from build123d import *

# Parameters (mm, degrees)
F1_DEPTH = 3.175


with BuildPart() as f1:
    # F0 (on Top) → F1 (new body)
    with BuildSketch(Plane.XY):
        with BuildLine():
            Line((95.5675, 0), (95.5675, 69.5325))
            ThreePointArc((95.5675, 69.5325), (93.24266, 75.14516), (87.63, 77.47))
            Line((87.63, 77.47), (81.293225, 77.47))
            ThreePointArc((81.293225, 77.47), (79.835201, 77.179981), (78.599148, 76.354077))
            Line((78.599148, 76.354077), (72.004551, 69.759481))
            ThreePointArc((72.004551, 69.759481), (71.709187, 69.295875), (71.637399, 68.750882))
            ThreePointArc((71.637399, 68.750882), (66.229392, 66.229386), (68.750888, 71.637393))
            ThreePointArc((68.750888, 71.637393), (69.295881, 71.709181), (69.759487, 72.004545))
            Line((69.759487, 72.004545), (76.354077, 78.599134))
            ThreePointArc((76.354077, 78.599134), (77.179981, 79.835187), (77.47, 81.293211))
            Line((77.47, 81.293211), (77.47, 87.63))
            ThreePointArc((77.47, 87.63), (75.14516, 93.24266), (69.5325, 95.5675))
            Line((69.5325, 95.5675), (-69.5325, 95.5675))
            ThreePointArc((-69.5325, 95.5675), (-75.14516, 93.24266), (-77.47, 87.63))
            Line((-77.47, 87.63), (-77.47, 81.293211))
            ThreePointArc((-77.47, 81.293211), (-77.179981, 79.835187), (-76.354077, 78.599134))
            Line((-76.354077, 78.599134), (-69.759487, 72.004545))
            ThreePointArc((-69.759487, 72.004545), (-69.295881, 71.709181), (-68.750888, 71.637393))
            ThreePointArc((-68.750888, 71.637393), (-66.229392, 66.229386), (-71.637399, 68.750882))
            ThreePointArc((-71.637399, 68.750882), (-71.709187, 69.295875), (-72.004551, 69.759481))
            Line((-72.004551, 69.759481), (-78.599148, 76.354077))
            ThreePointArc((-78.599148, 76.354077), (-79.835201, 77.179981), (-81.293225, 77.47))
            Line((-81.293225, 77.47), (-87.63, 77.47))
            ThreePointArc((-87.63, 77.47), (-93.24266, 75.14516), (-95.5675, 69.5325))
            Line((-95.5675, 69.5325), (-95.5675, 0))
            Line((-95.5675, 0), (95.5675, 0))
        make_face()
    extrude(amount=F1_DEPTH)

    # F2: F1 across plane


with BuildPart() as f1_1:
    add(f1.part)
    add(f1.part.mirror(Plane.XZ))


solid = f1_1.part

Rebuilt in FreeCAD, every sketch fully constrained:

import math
import FreeCAD as App
import Part
import Sketcher
Q = App.Units.Quantity

doc = App.newDocument("Part")
params = doc.addObject("Spreadsheet::Sheet", "Params")
for row, (alias, value) in enumerate([
    ("sketch1_radius", "0.15 in"),
    ("sketch1_radius2", "0.0500002 in"),
    ("sketch1_radius3", "0.0500002 in"),
    ("sketch1_radius4", "0.15 in"),
    ("sketch1_radius5", "0.15 in"),
    ("pad1_length", "0.125 in"),
], start=1):
    params.set(f"A{row}", alias)
    params.set(f"B{row}", "=" + value)
    params.setAlias(f"B{row}", alias)

body = doc.addObject("PartDesign::Body", "Body")

sketch1 = body.newObject("Sketcher::SketchObject", "Sketch")
sketch1.AttachmentSupport = (doc.getObject("XY_Plane"), [""])
sketch1.MapMode = "FlatFace"
sketch1.addGeometry([
    Part.LineSegment(App.Vector(95.5675, 0, 0), App.Vector(95.5675, 69.5325, 0)),
    Part.ArcOfCircle(Part.Circle(App.Vector(87.63, 69.5325, 0), App.Vector(0, 0, 1), 7.9375), math.radians(0.000002), math.radians(89.999998)),
    Part.LineSegment(App.Vector(87.63, 77.47, 0), App.Vector(81.293225, 77.47, 0)),
    Part.ArcOfCircle(Part.Circle(App.Vector(81.293225, 73.659999, 0), App.Vector(0, 0, 1), 3.810001), math.radians(90.000002), math.radians(134.999989)),
    Part.LineSegment(App.Vector(78.599148, 76.354077, 0), App.Vector(72.004551, 69.759481, 0)),
    Part.ArcOfCircle(Part.Circle(App.Vector(72.902581, 68.861453, 0), App.Vector(0, 0, 1), 1.270005), math.radians(135.000085), math.radians(184.9947)),
    Part.ArcOfCircle(Part.Circle(App.Vector(68.474456, 68.47445, 0), App.Vector(0, 0, 1), 3.175), math.radians(85.005206), math.radians(364.994794)),
    Part.ArcOfCircle(Part.Circle(App.Vector(68.861459, 72.902575, 0), App.Vector(0, 0, 1), 1.270005), math.radians(-94.9947), math.radians(-45.000085)),
    Part.LineSegment(App.Vector(69.759487, 72.004545, 0), App.Vector(76.354077, 78.599134, 0)),
    Part.ArcOfCircle(Part.Circle(App.Vector(73.659999, 81.293211, 0), App.Vector(0, 0, 1), 3.810001), math.radians(-44.999989), math.radians(-0.000002)),
    Part.LineSegment(App.Vector(77.47, 81.293211, 0), App.Vector(77.47, 87.63, 0)),
    Part.ArcOfCircle(Part.Circle(App.Vector(69.5325, 87.63, 0), App.Vector(0, 0, 1), 7.9375), math.radians(0.000002), math.radians(89.999998)),
    Part.LineSegment(App.Vector(69.5325, 95.5675, 0), App.Vector(-69.5325, 95.5675, 0)),
    Part.ArcOfCircle(Part.Circle(App.Vector(-69.5325, 87.63, 0), App.Vector(0, 0, 1), 7.9375), math.radians(90.000002), math.radians(179.999998)),
    Part.LineSegment(App.Vector(-77.47, 87.63, 0), App.Vector(-77.47, 81.293211, 0)),
    Part.ArcOfCircle(Part.Circle(App.Vector(-73.659999, 81.293211, 0), App.Vector(0, 0, 1), 3.810001), math.radians(-179.999998), math.radians(-135.000011)),
    Part.LineSegment(App.Vector(-76.354077, 78.599134, 0), App.Vector(-69.759487, 72.004545, 0)),
    Part.ArcOfCircle(Part.Circle(App.Vector(-68.861459, 72.902575, 0), App.Vector(0, 0, 1), 1.270005), math.radians(-134.999915), math.radians(-85.0053)),
    Part.ArcOfCircle(Part.Circle(App.Vector(-68.474456, 68.47445, 0), App.Vector(0, 0, 1), 3.175), math.radians(175.005206), math.radians(454.994794)),
    Part.ArcOfCircle(Part.Circle(App.Vector(-72.902581, 68.861453, 0), App.Vector(0, 0, 1), 1.270005), math.radians(-4.9947), math.radians(44.999915)),
    Part.LineSegment(App.Vector(-72.004551, 69.759481, 0), App.Vector(-78.599148, 76.354077, 0)),
    Part.ArcOfCircle(Part.Circle(App.Vector(-81.293225, 73.659999, 0), App.Vector(0, 0, 1), 3.810001), math.radians(45.000011), math.radians(89.999998)),
    Part.LineSegment(App.Vector(-81.293225, 77.47, 0), App.Vector(-87.63, 77.47, 0)),
    Part.ArcOfCircle(Part.Circle(App.Vector(-87.63, 69.5325, 0), App.Vector(0, 0, 1), 7.9375), math.radians(90.000002), math.radians(179.999998)),
    Part.LineSegment(App.Vector(-95.5675, 69.5325, 0), App.Vector(-95.5675, 0, 0)),
    Part.LineSegment(App.Vector(-95.5675, 0, 0), App.Vector(95.5675, 0, 0)),
], False)
sketch1.addConstraint([
    Sketcher.Constraint("Coincident", 0, 2, 1, 1),
    Sketcher.Constraint("Coincident", 1, 2, 2, 1),
    Sketcher.Constraint("Coincident", 2, 2, 3, 1),
    Sketcher.Constraint("Coincident", 3, 2, 4, 1),
    Sketcher.Constraint("Coincident", 4, 2, 5, 1),
    Sketcher.Constraint("Coincident", 5, 2, 6, 2),
    Sketcher.Constraint("Coincident", 6, 1, 7, 1),
    Sketcher.Constraint("Coincident", 7, 2, 8, 1),
    Sketcher.Constraint("Coincident", 8, 2, 9, 1),
    Sketcher.Constraint("Coincident", 9, 2, 10, 1),
    Sketcher.Constraint("Coincident", 10, 2, 11, 1),
    Sketcher.Constraint("Coincident", 11, 2, 12, 1),
    Sketcher.Constraint("Coincident", 12, 2, 13, 1),
    Sketcher.Constraint("Coincident", 13, 2, 14, 1),
    Sketcher.Constraint("Coincident", 14, 2, 15, 1),
    Sketcher.Constraint("Coincident", 15, 2, 16, 1),
    Sketcher.Constraint("Coincident", 16, 2, 17, 1),
    Sketcher.Constraint("Coincident", 17, 2, 18, 2),
    Sketcher.Constraint("Coincident", 18, 1, 19, 1),
    Sketcher.Constraint("Coincident", 19, 2, 20, 1),
    Sketcher.Constraint("Coincident", 20, 2, 21, 1),
    Sketcher.Constraint("Coincident", 21, 2, 22, 1),
    Sketcher.Constraint("Coincident", 22, 2, 23, 1),
    Sketcher.Constraint("Coincident", 23, 2, 24, 1),
    Sketcher.Constraint("Coincident", 24, 2, 25, 1),
    Sketcher.Constraint("Coincident", 25, 2, 0, 1),
    Sketcher.Constraint("Vertical", 0),
    Sketcher.Constraint("Horizontal", 2),
    Sketcher.Constraint("Vertical", 10),
    Sketcher.Constraint("Horizontal", 12),
    Sketcher.Constraint("Vertical", 14),
    Sketcher.Constraint("Horizontal", 22),
    Sketcher.Constraint("Vertical", 24),
    Sketcher.Constraint("Horizontal", 25),
    Sketcher.Constraint("PointOnObject", 24, 2, -1),
    Sketcher.Constraint("Radius", 3, Q("0.15 in")),
    Sketcher.Constraint("Radius", 5, Q("0.0500002 in")),
    Sketcher.Constraint("Radius", 7, Q("0.0500002 in")),
    Sketcher.Constraint("Radius", 9, Q("0.15 in")),
    Sketcher.Constraint("Radius", 15, Q("0.15 in")),
    Sketcher.Constraint("Radius", 17, Q("0.0500002 in")),
    Sketcher.Constraint("Radius", 19, Q("0.0500002 in")),
    Sketcher.Constraint("Radius", 21, Q("0.15 in")),
    Sketcher.Constraint("Radius", 1, Q("0.3125 in")),
    Sketcher.Constraint("Radius", 6, Q("0.125 in")),
    Sketcher.Constraint("Radius", 11, Q("0.3125 in")),
    Sketcher.Constraint("Radius", 13, Q("0.3125 in")),
    Sketcher.Constraint("Radius", 18, Q("0.125 in")),
    Sketcher.Constraint("Radius", 23, Q("0.3125 in")),
    Sketcher.Constraint("DistanceY", -1, 1, 3, 3, Q("2.9 in")),
    Sketcher.Constraint("DistanceX", -1, 1, 9, 3, Q("2.9 in")),
    Sketcher.Constraint("DistanceX", 15, 3, -1, 1, Q("2.9 in")),
    Sketcher.Constraint("DistanceY", -1, 1, 21, 3, Q("2.9 in")),
    Sketcher.Constraint("DistanceY", 2, 2, 10, 2, Q("0.4 in")),
    Sketcher.Constraint("DistanceX", 22, 2, 14, 2, Q("0.4 in")),
    Sketcher.Constraint("DistanceX", 12, 2, 12, 1, Q("5.475 in")),
    Sketcher.Constraint("DistanceX", 25, 1, 25, 2, Q("7.525 in")),
    Sketcher.Constraint("DistanceX", -1, 1, 1, 3, Q("3.45 in")),
    Sketcher.Constraint("DistanceY", -1, 1, 11, 3, Q("3.45 in")),
    Sketcher.Constraint("DistanceX", -1, 1, 1, 2, Q("3.45 in")),
    Sketcher.Constraint("DistanceY", -1, 1, 13, 2, Q("3.45 in")),
    Sketcher.Constraint("DistanceY", 0, 1, 0, 2, Q("2.7375 in")),
    Sketcher.Constraint("DistanceY", 24, 2, 24, 1, Q("2.7375 in")),
    Sketcher.Constraint("DistanceX", 11, 2, 10, 2, Q("0.3125 in")),
    Sketcher.Constraint("DistanceY", 10, 1, 10, 2, Q("6.336789 mm")),
    Sketcher.Constraint("DistanceY", 14, 2, 14, 1, Q("6.336789 mm")),
    Sketcher.Constraint("DistanceX", -1, 1, 5, 2, Q("71.637399 mm")),
    Sketcher.Constraint("DistanceX", 18, 1, -1, 1, Q("71.637399 mm")),
    Sketcher.Constraint("DistanceY", 5, 2, 4, 2, Q("1.008599 mm")),
    Sketcher.Constraint("DistanceX", 6, 1, 7, 2, Q("1.008599 mm")),
    Sketcher.Constraint("DistanceX", 16, 2, 17, 2, Q("1.008599 mm")),
    Sketcher.Constraint("DistanceY", 18, 1, 19, 2, Q("1.008599 mm")),
    Sketcher.Constraint("DistanceX", 2, 2, 2, 1, Q("6.336775 mm")),
    Sketcher.Constraint("DistanceX", 22, 2, 22, 1, Q("6.336775 mm")),
    Sketcher.Constraint("DistanceX", -1, 1, 5, 3, Q("72.902581 mm")),
    Sketcher.Constraint("DistanceY", -1, 1, 6, 3, Q("68.47445 mm")),
    Sketcher.Constraint("DistanceX", -1, 1, 7, 3, Q("68.861459 mm")),
    Sketcher.Constraint("DistanceY", -1, 1, 9, 3, Q("81.293211 mm")),
    Sketcher.Constraint("DistanceY", -1, 1, 15, 3, Q("81.293211 mm")),
    Sketcher.Constraint("DistanceX", 17, 3, -1, 1, Q("68.861459 mm")),
    Sketcher.Constraint("DistanceY", -1, 1, 18, 3, Q("68.47445 mm")),
    Sketcher.Constraint("DistanceX", 19, 3, -1, 1, Q("72.902581 mm")),
    Sketcher.Constraint("DistanceX", -1, 1, 3, 2, Q("78.599148 mm")),
    Sketcher.Constraint("DistanceY", -1, 1, 4, 2, Q("69.759481 mm")),
    Sketcher.Constraint("DistanceX", 17, 2, -1, 1, Q("68.750888 mm")),
    Sketcher.Constraint("DistanceY", -1, 1, 18, 1, Q("68.750882 mm")),
    Sketcher.Constraint("DistanceX", 20, 2, -1, 1, Q("78.599148 mm")),
    Sketcher.Constraint("DistanceX", 6, 3, 3, 3, Q("12.818769 mm")),
    Sketcher.Constraint("DistanceX", 21, 3, 18, 3, Q("12.818769 mm")),
    Sketcher.Constraint("DistanceX", 6, 1, 7, 3, Q("0.110571 mm")),
    Sketcher.Constraint("DistanceX", 8, 2, 3, 2, Q("2.245071 mm")),
    Sketcher.Constraint("DistanceX", 15, 2, 15, 3, Q("2.694078 mm")),
])
sketch1.setExpression("Constraints[35]", "Params.sketch1_radius")
sketch1.setExpression("Constraints[36]", "Params.sketch1_radius2")
sketch1.setExpression("Constraints[37]", "Params.sketch1_radius3")
sketch1.setExpression("Constraints[38]", "Params.sketch1_radius4")
sketch1.setExpression("Constraints[39]", "Params.sketch1_radius5")
pad1 = body.newObject("PartDesign::Pad", "Pad")
pad1.Profile = sketch1
pad1.setExpression("Length", "Params.pad1_length")
body2 = doc.addObject("PartDesign::Body", "Body001")
doc.recompute()

body2.BaseFeature = body
doc.recompute()

mirroring = doc.addObject("Part::Mirroring", "Mirroring")
mirroring.Source = body
mirroring.Base = App.Vector(0, 0, 0)
mirroring.Normal = App.Vector(0, -1, 0)
body3 = doc.addObject("PartDesign::Body", "Body002")
body3.BaseFeature = mirroring
boolean = body2.newObject("PartDesign::Boolean", "Boolean")
boolean.Type = "Fuse"
boolean.addObjects([body3])
doc.recompute()
mirroring.Visibility = False

doc.recompute()
